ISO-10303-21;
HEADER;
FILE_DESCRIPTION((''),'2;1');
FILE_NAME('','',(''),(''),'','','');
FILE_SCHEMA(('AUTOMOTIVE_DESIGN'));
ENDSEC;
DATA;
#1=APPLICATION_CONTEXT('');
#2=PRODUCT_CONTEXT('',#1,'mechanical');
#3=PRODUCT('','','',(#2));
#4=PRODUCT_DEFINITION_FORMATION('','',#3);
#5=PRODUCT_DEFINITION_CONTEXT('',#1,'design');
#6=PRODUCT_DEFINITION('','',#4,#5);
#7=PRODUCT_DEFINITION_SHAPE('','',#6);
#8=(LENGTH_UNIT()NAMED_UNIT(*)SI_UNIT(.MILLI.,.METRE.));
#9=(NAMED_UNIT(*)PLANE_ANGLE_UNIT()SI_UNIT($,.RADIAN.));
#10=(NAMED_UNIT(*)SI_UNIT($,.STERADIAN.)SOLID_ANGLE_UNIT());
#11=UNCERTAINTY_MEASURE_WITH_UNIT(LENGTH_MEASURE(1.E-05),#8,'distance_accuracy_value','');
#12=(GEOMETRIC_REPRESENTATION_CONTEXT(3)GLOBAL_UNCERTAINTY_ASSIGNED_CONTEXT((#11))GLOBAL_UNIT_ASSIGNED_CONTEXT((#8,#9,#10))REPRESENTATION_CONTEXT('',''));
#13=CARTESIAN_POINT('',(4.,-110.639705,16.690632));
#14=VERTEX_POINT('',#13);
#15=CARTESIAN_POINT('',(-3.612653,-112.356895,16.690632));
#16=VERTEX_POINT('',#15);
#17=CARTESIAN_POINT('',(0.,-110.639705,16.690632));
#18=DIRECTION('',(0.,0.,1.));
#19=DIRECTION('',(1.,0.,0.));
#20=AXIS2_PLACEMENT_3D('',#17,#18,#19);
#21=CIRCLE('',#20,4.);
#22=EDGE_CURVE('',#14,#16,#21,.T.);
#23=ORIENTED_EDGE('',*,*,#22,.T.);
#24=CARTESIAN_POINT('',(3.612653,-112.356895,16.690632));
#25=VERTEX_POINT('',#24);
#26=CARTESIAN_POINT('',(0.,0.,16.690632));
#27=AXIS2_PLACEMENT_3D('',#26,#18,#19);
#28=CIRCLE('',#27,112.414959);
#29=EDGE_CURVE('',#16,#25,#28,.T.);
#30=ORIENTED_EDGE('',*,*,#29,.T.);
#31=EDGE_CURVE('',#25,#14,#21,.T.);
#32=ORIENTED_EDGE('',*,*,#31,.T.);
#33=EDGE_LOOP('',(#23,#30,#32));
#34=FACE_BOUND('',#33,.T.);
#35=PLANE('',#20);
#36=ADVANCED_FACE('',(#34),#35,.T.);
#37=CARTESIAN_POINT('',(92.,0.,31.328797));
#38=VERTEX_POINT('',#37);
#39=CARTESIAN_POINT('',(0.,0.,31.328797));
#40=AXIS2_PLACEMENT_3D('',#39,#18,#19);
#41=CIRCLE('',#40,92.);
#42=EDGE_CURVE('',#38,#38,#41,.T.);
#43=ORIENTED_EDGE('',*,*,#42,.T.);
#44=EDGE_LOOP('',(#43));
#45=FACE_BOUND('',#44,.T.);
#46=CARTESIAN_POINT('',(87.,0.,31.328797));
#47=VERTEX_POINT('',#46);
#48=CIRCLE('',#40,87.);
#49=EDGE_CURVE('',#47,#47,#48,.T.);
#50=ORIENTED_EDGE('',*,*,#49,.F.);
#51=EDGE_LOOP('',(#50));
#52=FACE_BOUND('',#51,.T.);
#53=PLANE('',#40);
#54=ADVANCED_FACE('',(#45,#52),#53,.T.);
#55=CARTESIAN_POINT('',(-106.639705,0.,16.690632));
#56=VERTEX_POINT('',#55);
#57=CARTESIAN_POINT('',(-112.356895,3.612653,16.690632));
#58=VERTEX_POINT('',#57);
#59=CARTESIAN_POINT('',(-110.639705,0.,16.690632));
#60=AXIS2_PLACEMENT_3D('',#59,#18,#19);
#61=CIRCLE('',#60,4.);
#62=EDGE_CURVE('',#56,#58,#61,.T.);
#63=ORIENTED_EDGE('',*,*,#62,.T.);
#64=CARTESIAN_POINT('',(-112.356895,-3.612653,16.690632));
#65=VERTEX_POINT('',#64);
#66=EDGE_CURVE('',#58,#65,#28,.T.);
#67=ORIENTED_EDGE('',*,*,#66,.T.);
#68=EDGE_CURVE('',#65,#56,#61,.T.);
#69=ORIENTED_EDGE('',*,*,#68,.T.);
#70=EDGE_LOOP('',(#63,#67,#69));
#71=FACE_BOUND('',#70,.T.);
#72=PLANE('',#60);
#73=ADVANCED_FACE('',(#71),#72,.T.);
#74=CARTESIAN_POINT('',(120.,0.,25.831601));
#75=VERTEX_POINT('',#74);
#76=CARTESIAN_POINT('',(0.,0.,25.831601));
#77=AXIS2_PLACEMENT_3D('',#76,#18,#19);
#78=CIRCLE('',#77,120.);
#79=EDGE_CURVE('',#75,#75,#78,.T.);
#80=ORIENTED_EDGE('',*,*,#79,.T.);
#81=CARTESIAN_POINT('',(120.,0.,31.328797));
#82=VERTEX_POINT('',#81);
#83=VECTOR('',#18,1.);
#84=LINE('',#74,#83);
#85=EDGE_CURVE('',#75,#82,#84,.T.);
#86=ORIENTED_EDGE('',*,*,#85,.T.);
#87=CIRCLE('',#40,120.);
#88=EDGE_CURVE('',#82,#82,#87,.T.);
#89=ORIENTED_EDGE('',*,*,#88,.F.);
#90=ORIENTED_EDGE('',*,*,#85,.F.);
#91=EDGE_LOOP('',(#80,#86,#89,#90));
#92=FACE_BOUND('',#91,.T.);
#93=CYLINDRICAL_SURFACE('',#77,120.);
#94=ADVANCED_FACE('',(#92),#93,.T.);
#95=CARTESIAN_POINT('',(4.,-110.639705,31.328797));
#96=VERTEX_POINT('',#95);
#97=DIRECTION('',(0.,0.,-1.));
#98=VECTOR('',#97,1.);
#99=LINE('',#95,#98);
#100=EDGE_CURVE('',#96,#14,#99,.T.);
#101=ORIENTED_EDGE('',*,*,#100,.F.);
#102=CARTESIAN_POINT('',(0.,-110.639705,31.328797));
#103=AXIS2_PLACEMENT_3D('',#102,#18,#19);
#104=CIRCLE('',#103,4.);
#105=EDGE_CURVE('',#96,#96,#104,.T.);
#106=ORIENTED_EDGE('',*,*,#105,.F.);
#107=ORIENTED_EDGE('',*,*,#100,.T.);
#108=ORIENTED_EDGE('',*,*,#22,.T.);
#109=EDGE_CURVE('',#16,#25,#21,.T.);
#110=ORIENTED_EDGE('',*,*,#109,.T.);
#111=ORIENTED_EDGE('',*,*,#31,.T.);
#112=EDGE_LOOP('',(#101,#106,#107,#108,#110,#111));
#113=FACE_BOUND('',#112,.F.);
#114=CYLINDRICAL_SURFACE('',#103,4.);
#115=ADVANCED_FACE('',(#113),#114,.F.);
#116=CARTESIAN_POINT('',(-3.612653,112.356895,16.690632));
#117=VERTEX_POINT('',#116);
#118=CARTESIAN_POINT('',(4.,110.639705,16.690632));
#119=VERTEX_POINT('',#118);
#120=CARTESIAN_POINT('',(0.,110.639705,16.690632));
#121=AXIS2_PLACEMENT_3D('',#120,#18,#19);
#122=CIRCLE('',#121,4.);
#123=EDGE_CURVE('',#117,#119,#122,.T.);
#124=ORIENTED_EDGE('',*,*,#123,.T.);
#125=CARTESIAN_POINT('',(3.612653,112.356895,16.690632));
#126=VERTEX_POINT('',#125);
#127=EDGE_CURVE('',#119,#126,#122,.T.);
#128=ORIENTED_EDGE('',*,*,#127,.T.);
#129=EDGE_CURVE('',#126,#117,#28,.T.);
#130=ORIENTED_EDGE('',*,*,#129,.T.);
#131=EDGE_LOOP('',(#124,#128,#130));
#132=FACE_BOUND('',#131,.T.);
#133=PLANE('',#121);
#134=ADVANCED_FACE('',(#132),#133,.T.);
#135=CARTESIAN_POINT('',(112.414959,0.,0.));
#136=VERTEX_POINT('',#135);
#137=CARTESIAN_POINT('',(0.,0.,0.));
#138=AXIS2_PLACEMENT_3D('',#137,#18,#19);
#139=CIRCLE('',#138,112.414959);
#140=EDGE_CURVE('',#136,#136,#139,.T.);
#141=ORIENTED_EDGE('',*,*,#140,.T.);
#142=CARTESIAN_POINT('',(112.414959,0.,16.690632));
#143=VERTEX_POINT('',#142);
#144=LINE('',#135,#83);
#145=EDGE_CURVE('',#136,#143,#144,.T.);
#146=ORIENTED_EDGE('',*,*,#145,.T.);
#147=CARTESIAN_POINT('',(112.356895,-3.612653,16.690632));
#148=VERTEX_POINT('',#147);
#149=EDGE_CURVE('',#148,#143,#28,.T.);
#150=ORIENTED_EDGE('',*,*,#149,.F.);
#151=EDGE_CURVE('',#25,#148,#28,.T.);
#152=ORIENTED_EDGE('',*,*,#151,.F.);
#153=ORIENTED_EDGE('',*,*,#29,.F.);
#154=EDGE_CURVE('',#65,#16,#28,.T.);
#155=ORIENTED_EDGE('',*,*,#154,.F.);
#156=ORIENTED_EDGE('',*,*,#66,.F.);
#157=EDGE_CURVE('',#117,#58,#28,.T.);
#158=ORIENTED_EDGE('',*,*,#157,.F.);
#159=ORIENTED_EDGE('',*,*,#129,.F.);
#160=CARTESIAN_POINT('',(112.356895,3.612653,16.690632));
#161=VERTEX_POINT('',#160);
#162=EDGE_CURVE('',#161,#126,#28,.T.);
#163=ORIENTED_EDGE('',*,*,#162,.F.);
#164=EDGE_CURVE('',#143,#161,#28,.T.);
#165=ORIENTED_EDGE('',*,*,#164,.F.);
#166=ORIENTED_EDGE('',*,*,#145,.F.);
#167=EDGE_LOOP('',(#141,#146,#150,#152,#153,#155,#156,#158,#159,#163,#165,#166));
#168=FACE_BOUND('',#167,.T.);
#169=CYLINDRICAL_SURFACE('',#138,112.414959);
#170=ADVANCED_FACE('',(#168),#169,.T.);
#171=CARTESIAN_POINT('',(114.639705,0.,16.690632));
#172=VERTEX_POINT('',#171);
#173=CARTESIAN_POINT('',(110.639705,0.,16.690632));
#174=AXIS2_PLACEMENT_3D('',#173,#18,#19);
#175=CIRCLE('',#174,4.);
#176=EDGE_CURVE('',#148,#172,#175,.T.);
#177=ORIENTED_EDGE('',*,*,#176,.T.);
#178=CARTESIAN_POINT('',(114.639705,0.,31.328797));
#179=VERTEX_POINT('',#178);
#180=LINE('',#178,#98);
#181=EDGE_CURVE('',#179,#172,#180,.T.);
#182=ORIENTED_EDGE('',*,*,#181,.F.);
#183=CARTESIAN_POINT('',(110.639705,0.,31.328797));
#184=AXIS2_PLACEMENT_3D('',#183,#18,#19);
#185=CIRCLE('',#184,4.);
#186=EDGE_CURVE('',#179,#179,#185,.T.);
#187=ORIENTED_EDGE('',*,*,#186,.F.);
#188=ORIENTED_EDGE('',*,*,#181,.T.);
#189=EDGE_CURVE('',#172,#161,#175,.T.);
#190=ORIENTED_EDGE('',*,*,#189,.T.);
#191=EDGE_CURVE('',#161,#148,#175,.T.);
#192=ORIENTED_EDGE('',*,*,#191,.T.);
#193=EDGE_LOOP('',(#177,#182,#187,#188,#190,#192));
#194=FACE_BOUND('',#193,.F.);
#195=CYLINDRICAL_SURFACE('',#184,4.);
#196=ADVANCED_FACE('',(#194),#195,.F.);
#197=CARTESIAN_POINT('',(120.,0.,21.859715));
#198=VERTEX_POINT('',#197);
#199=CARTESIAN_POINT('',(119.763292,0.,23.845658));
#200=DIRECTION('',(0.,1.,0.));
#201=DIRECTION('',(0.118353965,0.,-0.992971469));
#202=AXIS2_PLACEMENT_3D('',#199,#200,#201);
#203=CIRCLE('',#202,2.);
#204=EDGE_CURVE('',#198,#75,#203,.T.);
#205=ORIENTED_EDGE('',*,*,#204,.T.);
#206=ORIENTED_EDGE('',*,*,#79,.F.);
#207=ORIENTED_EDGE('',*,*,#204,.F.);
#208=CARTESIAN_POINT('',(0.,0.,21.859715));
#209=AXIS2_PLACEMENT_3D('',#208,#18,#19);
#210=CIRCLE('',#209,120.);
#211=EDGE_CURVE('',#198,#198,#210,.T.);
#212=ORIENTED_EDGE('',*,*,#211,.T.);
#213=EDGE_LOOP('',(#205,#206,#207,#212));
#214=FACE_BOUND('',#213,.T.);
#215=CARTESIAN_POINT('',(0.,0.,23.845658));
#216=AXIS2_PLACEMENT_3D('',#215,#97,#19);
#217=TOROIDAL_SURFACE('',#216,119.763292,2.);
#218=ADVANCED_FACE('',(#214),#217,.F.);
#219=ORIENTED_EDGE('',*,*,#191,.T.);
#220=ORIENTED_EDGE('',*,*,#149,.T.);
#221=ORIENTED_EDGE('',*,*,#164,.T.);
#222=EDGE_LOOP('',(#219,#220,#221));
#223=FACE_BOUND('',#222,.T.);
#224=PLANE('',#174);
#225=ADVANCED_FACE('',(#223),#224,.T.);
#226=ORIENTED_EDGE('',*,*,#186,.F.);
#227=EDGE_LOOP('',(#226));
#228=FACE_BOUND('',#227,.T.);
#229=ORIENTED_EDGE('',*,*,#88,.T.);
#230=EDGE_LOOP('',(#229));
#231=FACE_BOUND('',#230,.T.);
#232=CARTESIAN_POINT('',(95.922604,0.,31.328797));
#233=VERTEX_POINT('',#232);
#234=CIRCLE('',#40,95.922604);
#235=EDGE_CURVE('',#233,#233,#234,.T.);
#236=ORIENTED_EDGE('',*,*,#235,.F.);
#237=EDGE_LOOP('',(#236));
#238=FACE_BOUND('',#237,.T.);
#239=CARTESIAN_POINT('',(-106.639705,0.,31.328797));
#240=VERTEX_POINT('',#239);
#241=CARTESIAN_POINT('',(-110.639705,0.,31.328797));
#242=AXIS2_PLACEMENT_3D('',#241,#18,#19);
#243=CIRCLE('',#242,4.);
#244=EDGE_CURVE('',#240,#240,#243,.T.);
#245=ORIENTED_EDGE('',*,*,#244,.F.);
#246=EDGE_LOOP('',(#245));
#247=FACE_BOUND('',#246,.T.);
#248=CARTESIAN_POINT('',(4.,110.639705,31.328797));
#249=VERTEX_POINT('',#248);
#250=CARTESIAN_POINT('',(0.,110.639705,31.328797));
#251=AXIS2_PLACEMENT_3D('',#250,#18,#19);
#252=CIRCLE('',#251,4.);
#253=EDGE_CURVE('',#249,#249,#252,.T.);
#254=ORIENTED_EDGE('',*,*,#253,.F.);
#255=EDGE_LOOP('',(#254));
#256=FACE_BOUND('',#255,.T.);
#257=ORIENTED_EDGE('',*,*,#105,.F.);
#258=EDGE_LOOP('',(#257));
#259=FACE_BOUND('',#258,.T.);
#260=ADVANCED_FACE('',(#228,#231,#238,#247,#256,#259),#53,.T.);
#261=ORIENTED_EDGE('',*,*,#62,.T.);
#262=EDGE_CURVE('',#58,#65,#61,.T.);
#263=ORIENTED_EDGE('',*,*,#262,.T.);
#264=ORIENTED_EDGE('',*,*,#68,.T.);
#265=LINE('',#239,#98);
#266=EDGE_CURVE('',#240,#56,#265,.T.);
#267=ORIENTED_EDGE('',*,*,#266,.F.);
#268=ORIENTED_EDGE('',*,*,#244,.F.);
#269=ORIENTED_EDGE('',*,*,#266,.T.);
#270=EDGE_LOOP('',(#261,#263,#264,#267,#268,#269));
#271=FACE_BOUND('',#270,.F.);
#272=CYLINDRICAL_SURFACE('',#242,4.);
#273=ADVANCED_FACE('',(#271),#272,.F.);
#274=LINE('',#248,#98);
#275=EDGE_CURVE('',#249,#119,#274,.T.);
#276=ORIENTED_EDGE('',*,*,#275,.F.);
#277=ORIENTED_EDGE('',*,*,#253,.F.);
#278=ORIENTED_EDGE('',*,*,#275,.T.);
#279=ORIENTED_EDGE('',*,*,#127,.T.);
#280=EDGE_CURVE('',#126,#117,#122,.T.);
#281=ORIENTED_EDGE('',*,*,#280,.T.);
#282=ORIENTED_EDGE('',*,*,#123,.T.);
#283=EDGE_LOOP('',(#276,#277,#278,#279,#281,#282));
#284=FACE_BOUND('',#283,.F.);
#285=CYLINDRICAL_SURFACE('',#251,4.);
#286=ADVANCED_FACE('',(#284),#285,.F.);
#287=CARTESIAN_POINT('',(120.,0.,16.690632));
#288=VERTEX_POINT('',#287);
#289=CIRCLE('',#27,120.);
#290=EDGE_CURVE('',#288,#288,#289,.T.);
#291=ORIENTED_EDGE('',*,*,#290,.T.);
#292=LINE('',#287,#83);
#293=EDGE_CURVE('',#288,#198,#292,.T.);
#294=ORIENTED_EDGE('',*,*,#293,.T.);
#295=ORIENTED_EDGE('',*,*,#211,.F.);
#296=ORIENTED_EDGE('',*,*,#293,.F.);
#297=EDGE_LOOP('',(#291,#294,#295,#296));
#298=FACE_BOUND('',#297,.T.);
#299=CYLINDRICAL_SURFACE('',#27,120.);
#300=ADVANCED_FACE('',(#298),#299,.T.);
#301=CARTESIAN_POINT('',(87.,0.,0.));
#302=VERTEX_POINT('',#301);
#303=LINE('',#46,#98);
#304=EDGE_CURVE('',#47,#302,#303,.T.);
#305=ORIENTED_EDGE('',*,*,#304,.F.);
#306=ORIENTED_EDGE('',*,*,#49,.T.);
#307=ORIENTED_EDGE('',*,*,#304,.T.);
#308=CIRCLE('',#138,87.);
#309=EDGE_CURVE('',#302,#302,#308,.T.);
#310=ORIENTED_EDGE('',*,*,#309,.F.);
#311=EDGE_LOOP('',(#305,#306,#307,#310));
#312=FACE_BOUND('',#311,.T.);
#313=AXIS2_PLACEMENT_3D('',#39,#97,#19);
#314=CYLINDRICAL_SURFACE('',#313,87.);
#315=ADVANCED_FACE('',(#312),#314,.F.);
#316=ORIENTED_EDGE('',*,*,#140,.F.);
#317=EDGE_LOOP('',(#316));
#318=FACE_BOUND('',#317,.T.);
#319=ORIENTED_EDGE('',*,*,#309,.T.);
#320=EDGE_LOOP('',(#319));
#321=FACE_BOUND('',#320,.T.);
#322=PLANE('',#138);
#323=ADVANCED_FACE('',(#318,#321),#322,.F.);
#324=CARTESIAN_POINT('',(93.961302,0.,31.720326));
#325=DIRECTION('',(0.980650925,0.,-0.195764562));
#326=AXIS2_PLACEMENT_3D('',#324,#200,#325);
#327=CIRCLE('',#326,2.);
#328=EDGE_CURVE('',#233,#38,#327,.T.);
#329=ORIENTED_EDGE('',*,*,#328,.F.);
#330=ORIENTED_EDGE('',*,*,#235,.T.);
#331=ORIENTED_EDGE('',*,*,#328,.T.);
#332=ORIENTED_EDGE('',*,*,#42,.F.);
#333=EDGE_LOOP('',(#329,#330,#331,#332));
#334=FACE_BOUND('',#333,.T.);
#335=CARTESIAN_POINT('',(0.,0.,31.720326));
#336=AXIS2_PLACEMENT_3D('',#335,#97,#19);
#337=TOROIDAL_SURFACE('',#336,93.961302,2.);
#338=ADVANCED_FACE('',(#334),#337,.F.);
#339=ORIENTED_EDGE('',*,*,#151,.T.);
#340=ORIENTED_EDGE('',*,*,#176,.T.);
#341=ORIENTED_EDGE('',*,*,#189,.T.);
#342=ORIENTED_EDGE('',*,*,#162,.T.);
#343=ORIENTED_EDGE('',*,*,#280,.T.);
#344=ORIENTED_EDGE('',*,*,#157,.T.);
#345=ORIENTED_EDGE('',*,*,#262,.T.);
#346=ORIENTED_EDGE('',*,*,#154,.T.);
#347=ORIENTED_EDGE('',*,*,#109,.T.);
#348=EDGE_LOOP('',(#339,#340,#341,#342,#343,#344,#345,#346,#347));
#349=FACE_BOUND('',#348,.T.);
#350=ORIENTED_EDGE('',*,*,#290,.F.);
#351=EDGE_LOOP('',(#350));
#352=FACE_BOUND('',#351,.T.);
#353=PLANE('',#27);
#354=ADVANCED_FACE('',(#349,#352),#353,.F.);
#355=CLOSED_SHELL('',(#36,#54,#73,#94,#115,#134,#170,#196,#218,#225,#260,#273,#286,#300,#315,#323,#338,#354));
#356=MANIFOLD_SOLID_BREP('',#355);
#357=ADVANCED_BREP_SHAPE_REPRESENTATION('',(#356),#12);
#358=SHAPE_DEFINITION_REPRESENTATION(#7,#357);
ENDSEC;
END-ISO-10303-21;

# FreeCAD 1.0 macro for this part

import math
import FreeCAD as App
import Part
import Sketcher

doc = App.newDocument("Part")
body = doc.addObject("PartDesign::Body", "Body")

sketch1 = doc.addObject("Sketcher::SketchObject", "Sketch")
body.addObject(sketch1)
sketch1.AttachmentSupport = (doc.XZ_Plane, [""])
sketch1.MapMode = "FlatFace"
sketch1.addGeometry([
    Part.LineSegment(App.Vector(87, 0, 0), App.Vector(112.4, 0, 0)),
    Part.LineSegment(App.Vector(112.4, 0, 0), App.Vector(112.4, 16.7, 0)),
    Part.LineSegment(App.Vector(112.4, 16.7, 0), App.Vector(120, 16.7, 0)),
    Part.LineSegment(App.Vector(120, 16.7, 0), App.Vector(120, 21.9, 0)),
    Part.ArcOfCircle(Part.Circle(App.Vector(119.8, 23.8, 0), App.Vector(0, 0, 1), 2), math.radians(83), math.radians(277)),
    Part.LineSegment(App.Vector(120, 25.8, 0), App.Vector(120, 31.3, 0)),
    Part.LineSegment(App.Vector(120, 31.3, 0), App.Vector(95.9, 31.3, 0)),
    Part.ArcOfCircle(Part.Circle(App.Vector(94, 31.7, 0), App.Vector(0, 0, 1), 2), math.radians(-169), math.radians(-11)),
    Part.LineSegment(App.Vector(92, 31.3, 0), App.Vector(87, 31.3, 0)),
    Part.LineSegment(App.Vector(87, 31.3, 0), App.Vector(87, 0, 0)),
], False)
sketch1.addConstraint([
    Sketcher.Constraint("Coincident", 0, 2, 1, 1),
    Sketcher.Constraint("Coincident", 1, 2, 2, 1),
    Sketcher.Constraint("Coincident", 2, 2, 3, 1),
    Sketcher.Constraint("Coincident", 3, 2, 4, 2),
    Sketcher.Constraint("Coincident", 4, 1, 5, 1),
    Sketcher.Constraint("Coincident", 5, 2, 6, 1),
    Sketcher.Constraint("Coincident", 6, 2, 7, 2),
    Sketcher.Constraint("Coincident", 7, 1, 8, 1),
    Sketcher.Constraint("Coincident", 8, 2, 9, 1),
    Sketcher.Constraint("Coincident", 9, 2, 0, 1),
    Sketcher.Constraint("Horizontal", 0),
    Sketcher.Constraint("Vertical", 1),
    Sketcher.Constraint("Horizontal", 2),
    Sketcher.Constraint("Vertical", 3),
    Sketcher.Constraint("Vertical", 5),
    Sketcher.Constraint("Horizontal", 6),
    Sketcher.Constraint("Horizontal", 8),
    Sketcher.Constraint("Vertical", 9),
    Sketcher.Constraint("Equal", 4, 7),
    Sketcher.Constraint("PointOnObject", 0, 2, -1),
    Sketcher.Constraint("Horizontal", 6, 2, 7, 1),
    Sketcher.Constraint("Vertical", 3, 2, 4, 1),
    Sketcher.Constraint("Radius", 4, 2.0),
    Sketcher.Constraint("DistanceX", 8, 2, 8, 1, 5.0),
    Sketcher.Constraint("DistanceX", -1, 1, 2, 2, 120.0),
    Sketcher.Constraint("DistanceX", -1, 1, 7, 1, 92.0),
    Sketcher.Constraint("DistanceX", 0, 1, 0, 2, 25.414959),
    Sketcher.Constraint("DistanceY", -1, 1, 4, 1, 25.831601),
    Sketcher.Constraint("DistanceX", 7, 3, 4, 1, 26.038698),
    Sketcher.Constraint("DistanceY", 1, 1, 1, 2, 16.690632),
    Sketcher.Constraint("DistanceY", 3, 1, 3, 2, 5.169083),
    Sketcher.Constraint("DistanceY", 5, 1, 5, 2, 5.497196),
])
revolution = doc.addObject("PartDesign::Revolution", "Revolution")
body.addObject(revolution)
revolution.Profile = sketch1
revolution.ReferenceAxis = (sketch1, ["V_Axis"])
revolution.Angle = 360

sketch2 = doc.addObject("Sketcher::SketchObject", "Sketch001")
body.addObject(sketch2)
sketch2.AttachmentSupport = (doc.XY_Plane, [""])
sketch2.MapMode = "FlatFace"
sketch2.AttachmentOffset = App.Placement(App.Vector(0, 0, 31.328797), App.Rotation())
sketch2.addGeometry([
    Part.Circle(App.Vector(110.6, 0, 0), App.Vector(0, 0, 1), 4),
    Part.Circle(App.Vector(-110.6, 0, 0), App.Vector(0, 0, 1), 4),
    Part.Circle(App.Vector(0, 110.6, 0), App.Vector(0, 0, 1), 4),
    Part.Circle(App.Vector(0, -110.6, 0), App.Vector(0, 0, 1), 4),
], False)
sketch2.addConstraint([
    Sketcher.Constraint("Equal", 0, 1),
    Sketcher.Constraint("Equal", 1, 2),
    Sketcher.Constraint("Equal", 2, 3),
    Sketcher.Constraint("Symmetric", 0, 3, 1, 3, -1, 1),
    Sketcher.Constraint("Symmetric", 2, 3, 3, 3, -1, 1),
    Sketcher.Constraint("PointOnObject", 0, 3, -1),
    Sketcher.Constraint("PointOnObject", 2, 3, -2),
    Sketcher.Constraint("Diameter", 0, 8.0),
    Sketcher.Constraint("DistanceX", 1, 3, 0, 3, 221.27941),
    Sketcher.Constraint("DistanceY", 3, 3, 2, 3, 221.27941),
])
pocket1 = doc.addObject("PartDesign::Pocket", "Pocket")
body.addObject(pocket1)
pocket1.Profile = sketch2
pocket1.Length = 14.638165

doc.recompute()
